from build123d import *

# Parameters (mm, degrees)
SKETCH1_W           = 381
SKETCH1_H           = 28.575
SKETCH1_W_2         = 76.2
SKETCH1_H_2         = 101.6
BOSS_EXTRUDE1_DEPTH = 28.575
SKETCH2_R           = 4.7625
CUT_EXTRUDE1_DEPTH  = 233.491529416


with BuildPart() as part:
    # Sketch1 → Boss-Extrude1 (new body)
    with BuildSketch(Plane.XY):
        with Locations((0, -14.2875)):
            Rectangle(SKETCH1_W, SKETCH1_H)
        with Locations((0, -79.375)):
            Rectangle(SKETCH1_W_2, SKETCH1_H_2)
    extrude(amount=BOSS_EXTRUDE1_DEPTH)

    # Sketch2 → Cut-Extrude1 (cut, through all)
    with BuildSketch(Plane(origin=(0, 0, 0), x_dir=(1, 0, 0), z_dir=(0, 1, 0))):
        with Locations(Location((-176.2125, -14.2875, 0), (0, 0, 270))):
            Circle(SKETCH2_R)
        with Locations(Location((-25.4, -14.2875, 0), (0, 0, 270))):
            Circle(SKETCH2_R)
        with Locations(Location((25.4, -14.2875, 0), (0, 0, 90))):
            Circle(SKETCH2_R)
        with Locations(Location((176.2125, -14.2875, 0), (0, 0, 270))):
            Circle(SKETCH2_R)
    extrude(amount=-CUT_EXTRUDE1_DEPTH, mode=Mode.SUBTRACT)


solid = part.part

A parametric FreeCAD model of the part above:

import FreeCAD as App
import Part
import Sketcher

V = App.Vector
Q = App.Units.Quantity


def add_polygon(sketch, points):
    """Adds a closed chain of lines whose ends are joined by coincident constraints."""
    first, n = sketch.GeometryCount, len(points)
    for a, b in zip(points, points[1:] + points[:1]):
        sketch.addGeometry(Part.LineSegment(App.Vector(*a, 0), App.Vector(*b, 0)), False)
    for i in range(n):
        sketch.addConstraint(Sketcher.Constraint("Coincident", first + i, 2, first + (i + 1) % n, 1))

doc = App.newDocument("Part")
params = doc.addObject("Spreadsheet::Sheet", "Params")
for row, (alias, value) in enumerate([
    ("sketch1_width", "6 in"),
    ("sketch1_width2", "3 in"),
    ("sketch1_height", "4 in"),
    ("sketch1_height2", "1.125 in"),
    ("pad1_length", "1.125 in"),
    ("sketch2_diameter", "0.375 in"),
], start=1):
    params.set(f"A{row}", alias)
    params.set(f"B{row}", "=" + value)
    params.setAlias(f"B{row}", alias)

body = doc.addObject("PartDesign::Body", "Body")

# Sketch on XY plane
sketch1 = body.newObject("Sketcher::SketchObject", "Sketch")
sketch1.AttachmentSupport = (doc.getObject("XY_Plane"), [""])
sketch1.MapMode = "FlatFace"
add_polygon(sketch1, [(-190, 0), (-190, -29), (-38, -29), (-38, -130), (38, -130), (38, -29), (190, -29), (190, 0)])  # lines 0-7
sketch1.addConstraint([
    Sketcher.Constraint("Vertical", 0),
    Sketcher.Constraint("Horizontal", 1),
    Sketcher.Constraint("Vertical", 2),
    Sketcher.Constraint("Horizontal", 3),
    Sketcher.Constraint("Vertical", 4),
    Sketcher.Constraint("Horizontal", 5),
    Sketcher.Constraint("Vertical", 6),
    Sketcher.Constraint("Horizontal", 7),
    Sketcher.Constraint("Symmetric", 6, 2, 7, 2, -1, 1),
    Sketcher.Constraint("Symmetric", 1, 2, 4, 2, -2),
    Sketcher.Constraint("DistanceX", 1, 1, 1, 2, Q("6 in")),
    Sketcher.Constraint("DistanceX", 3, 1, 3, 2, Q("3 in")),
    Sketcher.Constraint("DistanceY", 2, 2, 2, 1, Q("4 in")),
    Sketcher.Constraint("DistanceY", 0, 2, 0, 1, Q("1.125 in")),
])
sketch1.setExpression("Constraints[18]", "Params.sketch1_width")
sketch1.setExpression("Constraints[19]", "Params.sketch1_width2")
sketch1.setExpression("Constraints[20]", "Params.sketch1_height")
sketch1.setExpression("Constraints[21]", "Params.sketch1_height2")
pad1 = body.newObject("PartDesign::Pad", "Pad")
pad1.Profile = sketch1
pad1.setExpression("Length", "Params.pad1_length")

# Sketch on XZ plane
sketch2 = body.newObject("Sketcher::SketchObject", "Sketch001")
sketch2.AttachmentSupport = (doc.getObject("XZ_Plane"), [""])
sketch2.MapMode = "FlatFace"
sketch2.addGeometry([
    Part.Circle(V(-176.2, 14.3, 0), V(0, 0, 1), 4.8),
    Part.Circle(V(-25.4, 14.3, 0), V(0, 0, 1), 4.8),
    Part.Circle(V(25.4, 14.3, 0), V(0, 0, 1), 4.8),
    Part.Circle(V(176.2, 14.3, 0), V(0, 0, 1), 4.8),
], False)
sketch2.addConstraint([
    Sketcher.Constraint("Equal", 0, 1),
    Sketcher.Constraint("Equal", 1, 2),
    Sketcher.Constraint("Equal", 2, 3),
    Sketcher.Constraint("Symmetric", 1, 3, 2, 3, -2),
    Sketcher.Constraint("Symmetric", 0, 3, 3, 3, -2),
    Sketcher.Constraint("Horizontal", 0, 3, 1, 3),
    Sketcher.Constraint("Diameter", 0, Q("0.375 in")),
    Sketcher.Constraint("DistanceX", 1, 3, -1, 1, Q("1 in")),
    Sketcher.Constraint("DistanceX", 0, 3, -1, 1, Q("6.9375 in")),
    Sketcher.Constraint("DistanceY", -1, 1, 0, 3, Q("0.5625 in")),
])
sketch2.setExpression("Constraints[6]", "Params.sketch2_diameter")
pocket1 = body.newObject("PartDesign::Pocket", "Pocket")
pocket1.Profile = sketch2
pocket1.Type = "ThroughAll"
pocket1.Reversed = True

doc.recompute()
